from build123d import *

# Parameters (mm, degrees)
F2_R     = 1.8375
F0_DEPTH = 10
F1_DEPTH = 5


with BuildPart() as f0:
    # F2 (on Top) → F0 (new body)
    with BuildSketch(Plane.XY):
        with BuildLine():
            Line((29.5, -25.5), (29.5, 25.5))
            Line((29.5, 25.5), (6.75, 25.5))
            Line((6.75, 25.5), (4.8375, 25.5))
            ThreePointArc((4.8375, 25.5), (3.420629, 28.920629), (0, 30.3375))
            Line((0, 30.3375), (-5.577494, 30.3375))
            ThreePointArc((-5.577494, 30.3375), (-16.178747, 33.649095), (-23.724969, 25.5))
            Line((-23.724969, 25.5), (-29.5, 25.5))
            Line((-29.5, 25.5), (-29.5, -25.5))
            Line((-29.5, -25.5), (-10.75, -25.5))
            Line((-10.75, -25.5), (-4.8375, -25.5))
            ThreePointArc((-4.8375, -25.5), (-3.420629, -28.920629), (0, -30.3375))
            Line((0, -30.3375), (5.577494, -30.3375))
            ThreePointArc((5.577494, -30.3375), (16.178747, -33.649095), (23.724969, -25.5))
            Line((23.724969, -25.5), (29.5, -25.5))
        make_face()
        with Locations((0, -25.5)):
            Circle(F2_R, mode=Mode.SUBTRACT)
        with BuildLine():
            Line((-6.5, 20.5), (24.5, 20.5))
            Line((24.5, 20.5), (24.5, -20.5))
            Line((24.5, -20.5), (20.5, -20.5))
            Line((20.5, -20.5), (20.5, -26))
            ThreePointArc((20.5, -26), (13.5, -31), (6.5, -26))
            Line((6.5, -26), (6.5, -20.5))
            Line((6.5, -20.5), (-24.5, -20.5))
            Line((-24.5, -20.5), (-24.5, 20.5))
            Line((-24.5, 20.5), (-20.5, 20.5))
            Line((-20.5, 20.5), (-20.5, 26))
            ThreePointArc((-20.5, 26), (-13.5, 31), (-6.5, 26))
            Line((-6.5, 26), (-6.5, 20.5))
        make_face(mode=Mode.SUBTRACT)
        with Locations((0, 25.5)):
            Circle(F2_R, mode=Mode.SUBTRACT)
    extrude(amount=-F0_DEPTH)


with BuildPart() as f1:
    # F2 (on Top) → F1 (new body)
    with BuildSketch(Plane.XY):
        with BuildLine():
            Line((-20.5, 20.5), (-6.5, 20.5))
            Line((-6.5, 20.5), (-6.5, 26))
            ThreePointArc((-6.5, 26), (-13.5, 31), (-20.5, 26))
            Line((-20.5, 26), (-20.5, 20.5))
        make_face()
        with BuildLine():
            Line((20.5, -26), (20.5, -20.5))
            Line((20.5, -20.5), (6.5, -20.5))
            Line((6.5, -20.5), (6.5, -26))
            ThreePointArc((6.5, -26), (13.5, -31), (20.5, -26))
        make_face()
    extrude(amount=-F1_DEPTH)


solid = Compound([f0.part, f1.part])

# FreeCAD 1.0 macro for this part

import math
import FreeCAD as App
import Part
import Sketcher

V = App.Vector

doc = App.newDocument("Part")
body = doc.addObject("PartDesign::Body", "Body")

# Sketch on XY plane
sketch1 = doc.addObject("Sketcher::SketchObject", "Sketch")
body.addObject(sketch1)
sketch1.AttachmentSupport = (doc.XY_Plane, [""])
sketch1.MapMode = "FlatFace"
sketch1.addGeometry(Part.LineSegment(V(29.5, -25.5, 0), V(29.5, 25.5, 0)), False)
sketch1.addGeometry(Part.LineSegment(V(29.5, 25.5, 0), V(4.8, 25.5, 0)), False)
sketch1.addGeometry(Part.ArcOfCircle(Part.Circle(V(0, 25.5, 0), V(0, 0, 1), 4.8), math.radians(0), math.radians(90)), False)
sketch1.addGeometry(Part.LineSegment(V(0, 30.3, 0), V(-5.6, 30.3, 0)), False)
sketch1.addGeometry(Part.ArcOfCircle(Part.Circle(V(-13.5, 23.6, 0), V(0, 0, 1), 10.4), math.radians(40), math.radians(169)), False)
sketch1.addGeometry(Part.LineSegment(V(-23.7, 25.5, 0), V(-29.5, 25.5, 0)), False)
sketch1.addGeometry(Part.LineSegment(V(-29.5, 25.5, 0), V(-29.5, -25.5, 0)), False)
sketch1.addGeometry(Part.LineSegment(V(-29.5, -25.5, 0), V(-4.8, -25.5, 0)), False)
sketch1.addGeometry(Part.ArcOfCircle(Part.Circle(V(0, -25.5, 0), V(0, 0, 1), 4.8), math.radians(-180), math.radians(-90)), False)
sketch1.addGeometry(Part.LineSegment(V(0, -30.3, 0), V(5.6, -30.3, 0)), False)
sketch1.addGeometry(Part.ArcOfCircle(Part.Circle(V(13.5, -23.6, 0), V(0, 0, 1), 10.4), math.radians(-140), math.radians(-11)), False)
sketch1.addGeometry(Part.LineSegment(V(23.7, -25.5, 0), V(29.5, -25.5, 0)), False)
sketch1.addGeometry(Part.Circle(V(0, -25.5, 0), V(0, 0, 1), 1.8), False)
sketch1.addGeometry(Part.LineSegment(V(-6.5, 26, 0), V(-6.5, 20.5, 0)), False)
sketch1.addGeometry(Part.LineSegment(V(-6.5, 20.5, 0), V(24.5, 20.5, 0)), False)
sketch1.addGeometry(Part.LineSegment(V(24.5, 20.5, 0), V(24.5, -20.5, 0)), False)
sketch1.addGeometry(Part.LineSegment(V(24.5, -20.5, 0), V(20.5, -20.5, 0)), False)
sketch1.addGeometry(Part.LineSegment(V(20.5, -20.5, 0), V(20.5, -26, 0)), False)
sketch1.addGeometry(Part.ArcOfCircle(Part.Circle(V(13.5, -23.6, 0), V(0, 0, 1), 7.4), math.radians(-161), math.radians(-19)), False)
sketch1.addGeometry(Part.LineSegment(V(6.5, -26, 0), V(6.5, -20.5, 0)), False)
sketch1.addGeometry(Part.LineSegment(V(6.5, -20.5, 0), V(-24.5, -20.5, 0)), False)
sketch1.addGeometry(Part.LineSegment(V(-24.5, -20.5, 0), V(-24.5, 20.5, 0)), False)
sketch1.addGeometry(Part.LineSegment(V(-24.5, 20.5, 0), V(-20.5, 20.5, 0)), False)
sketch1.addGeometry(Part.LineSegment(V(-20.5, 20.5, 0), V(-20.5, 26, 0)), False)
sketch1.addGeometry(Part.ArcOfCircle(Part.Circle(V(-13.5, 23.6, 0), V(0, 0, 1), 7.4), math.radians(19), math.radians(161)), False)
sketch1.addGeometry(Part.Circle(V(0, 25.5, 0), V(0, 0, 1), 1.8), False)
sketch1.addConstraint(Sketcher.Constraint("Coincident", 0, 2, 1, 1))
sketch1.addConstraint(Sketcher.Constraint("Coincident", 1, 2, 2, 1))
sketch1.addConstraint(Sketcher.Constraint("Tangent", 2, 2, 3, 1))
sketch1.addConstraint(Sketcher.Constraint("Coincident", 3, 2, 4, 1))
sketch1.addConstraint(Sketcher.Constraint("Coincident", 4, 2, 5, 1))
sketch1.addConstraint(Sketcher.Constraint("Coincident", 5, 2, 6, 1))
sketch1.addConstraint(Sketcher.Constraint("Coincident", 6, 2, 7, 1))
sketch1.addConstraint(Sketcher.Constraint("Coincident", 7, 2, 8, 1))
sketch1.addConstraint(Sketcher.Constraint("Tangent", 8, 2, 9, 1))
sketch1.addConstraint(Sketcher.Constraint("Coincident", 9, 2, 10, 1))
sketch1.addConstraint(Sketcher.Constraint("Coincident", 10, 2, 11, 1))
sketch1.addConstraint(Sketcher.Constraint("Coincident", 11, 2, 0, 1))
sketch1.addConstraint(Sketcher.Constraint("Coincident", 13, 2, 14, 1))
sketch1.addConstraint(Sketcher.Constraint("Coincident", 14, 2, 15, 1))
sketch1.addConstraint(Sketcher.Constraint("Coincident", 15, 2, 16, 1))
sketch1.addConstraint(Sketcher.Constraint("Coincident", 16, 2, 17, 1))
sketch1.addConstraint(Sketcher.Constraint("Coincident", 17, 2, 18, 2))
sketch1.addConstraint(Sketcher.Constraint("Coincident", 18, 1, 19, 1))
sketch1.addConstraint(Sketcher.Constraint("Coincident", 19, 2, 20, 1))
sketch1.addConstraint(Sketcher.Constraint("Coincident", 20, 2, 21, 1))
sketch1.addConstraint(Sketcher.Constraint("Coincident", 21, 2, 22, 1))
sketch1.addConstraint(Sketcher.Constraint("Coincident", 22, 2, 23, 1))
sketch1.addConstraint(Sketcher.Constraint("Coincident", 23, 2, 24, 2))
sketch1.addConstraint(Sketcher.Constraint("Coincident", 24, 1, 13, 1))
sketch1.addConstraint(Sketcher.Constraint("Vertical", 0))
sketch1.addConstraint(Sketcher.Constraint("Horizontal", 1))
sketch1.addConstraint(Sketcher.Constraint("Horizontal", 3))
sketch1.addConstraint(Sketcher.Constraint("Horizontal", 5))
sketch1.addConstraint(Sketcher.Constraint("Vertical", 6))
sketch1.addConstraint(Sketcher.Constraint("Horizontal", 7))
sketch1.addConstraint(Sketcher.Constraint("Horizontal", 9))
sketch1.addConstraint(Sketcher.Constraint("Horizontal", 11))
sketch1.addConstraint(Sketcher.Constraint("Vertical", 13))
sketch1.addConstraint(Sketcher.Constraint("Horizontal", 14))
sketch1.addConstraint(Sketcher.Constraint("Vertical", 15))
sketch1.addConstraint(Sketcher.Constraint("Horizontal", 16))
sketch1.addConstraint(Sketcher.Constraint("Vertical", 17))
sketch1.addConstraint(Sketcher.Constraint("Vertical", 19))
sketch1.addConstraint(Sketcher.Constraint("Horizontal", 20))
sketch1.addConstraint(Sketcher.Constraint("Vertical", 21))
sketch1.addConstraint(Sketcher.Constraint("Horizontal", 22))
sketch1.addConstraint(Sketcher.Constraint("Vertical", 23))
sketch1.addConstraint(Sketcher.Constraint("Coincident", 12, 3, 8, 3))
sketch1.addConstraint(Sketcher.Constraint("Coincident", 18, 3, 10, 3))
sketch1.addConstraint(Sketcher.Constraint("Coincident", 24, 3, 4, 3))
sketch1.addConstraint(Sketcher.Constraint("Coincident", 25, 3, 2, 3))
sketch1.addConstraint(Sketcher.Constraint("Equal", 2, 8))
sketch1.addConstraint(Sketcher.Constraint("Equal", 4, 10))
sketch1.addConstraint(Sketcher.Constraint("Equal", 18, 24))
sketch1.addConstraint(Sketcher.Constraint("Equal", 12, 25))
sketch1.addConstraint(Sketcher.Constraint("Symmetric", 2, 3, 8, 3, -1, 1))
sketch1.addConstraint(Sketcher.Constraint("Symmetric", 4, 3, 10, 3, -1, 1))
sketch1.addConstraint(Sketcher.Constraint("Symmetric", 0, 2, 6, 2, -1, 1))
sketch1.addConstraint(Sketcher.Constraint("Symmetric", 13, 2, 19, 2, -1, 1))
sketch1.addConstraint(Sketcher.Constraint("Symmetric", 15, 2, 21, 2, -1, 1))
sketch1.addConstraint(Sketcher.Constraint("PointOnObject", 2, 3, -2))
sketch1.addConstraint(Sketcher.Constraint("Horizontal", 25, 3, 0, 2))
sketch1.addConstraint(Sketcher.Constraint("Horizontal", 1, 2, 4, 2))
sketch1.addConstraint(Sketcher.Constraint("Horizontal", 7, 2, 10, 2))
sketch1.addConstraint(Sketcher.Constraint("Horizontal", 17, 2, 18, 1))
sketch1.addConstraint(Sketcher.Constraint("Horizontal", 16, 2, 19, 2))
sketch1.addConstraint(Sketcher.Constraint("Horizontal", 23, 2, 24, 1))
sketch1.addConstraint(Sketcher.Constraint("Radius", 4, 10.4))
sketch1.addConstraint(Sketcher.Constraint("Radius", 18, 7.4))
sketch1.addConstraint(Sketcher.Constraint("DistanceX", 14, 1, 14, 2, 31.0))
sketch1.addConstraint(Sketcher.Constraint("DistanceX", 16, 2, 16, 1, 4.0))
sketch1.addConstraint(Sketcher.Constraint("DistanceY", 0, 1, 0, 2, 51.0))
sketch1.addConstraint(Sketcher.Constraint("DistanceY", 15, 2, 15, 1, 41.0))
sketch1.addConstraint(Sketcher.Constraint("Diameter", 12, 3.675))
sketch1.addConstraint(Sketcher.Constraint("DistanceY", 13, 2, 13, 1, 5.5))
sketch1.addConstraint(Sketcher.Constraint("DistanceX", 4, 3, 0, 2, 42.999999))
sketch1.addConstraint(Sketcher.Constraint("DistanceX", 4, 3, 13, 2, 6.999999))
sketch1.addConstraint(Sketcher.Constraint("Radius", 2, 4.8375))
pad1 = doc.addObject("PartDesign::Pad", "Pad")
body.addObject(pad1)
pad1.Profile = sketch1
pad1.Length = 10
pad1.Reversed = True
body2 = doc.addObject("PartDesign::Body", "Body001")
body2.AllowCompound = True

# Sketch on XY plane
sketch2 = doc.addObject("Sketcher::SketchObject", "Sketch001")
body2.addObject(sketch2)
sketch2.AttachmentSupport = (doc.getObject("XY_Plane001"), [""])
sketch2.MapMode = "FlatFace"
sketch2.addGeometry(Part.LineSegment(V(-20, 20, 0), V(-6, 20, 0)), False)
sketch2.addGeometry(Part.LineSegment(V(-6, 20, 0), V(-6, 26, 0)), False)
sketch2.addGeometry(Part.ArcOfCircle(Part.Circle(V(-14, 24, 0), V(0, 0, 1), 7), math.radians(19), math.radians(161)), False)
sketch2.addGeometry(Part.LineSegment(V(-20, 26, 0), V(-20, 20, 0)), False)
sketch2.addGeometry(Part.LineSegment(V(20, -26, 0), V(20, -20, 0)), False)
sketch2.addGeometry(Part.LineSegment(V(20, -20, 0), V(6, -20, 0)), False)
sketch2.addGeometry(Part.LineSegment(V(6, -20, 0), V(6, -26, 0)), False)
sketch2.addGeometry(Part.ArcOfCircle(Part.Circle(V(14, -24, 0), V(0, 0, 1), 7), math.radians(-161), math.radians(-19)), False)
sketch2.addConstraint(Sketcher.Constraint("Coincident", 0, 2, 1, 1))
sketch2.addConstraint(Sketcher.Constraint("Coincident", 1, 2, 2, 1))
sketch2.addConstraint(Sketcher.Constraint("Coincident", 2, 2, 3, 1))
sketch2.addConstraint(Sketcher.Constraint("Coincident", 3, 2, 0, 1))
sketch2.addConstraint(Sketcher.Constraint("Coincident", 4, 2, 5, 1))
sketch2.addConstraint(Sketcher.Constraint("Coincident", 5, 2, 6, 1))
sketch2.addConstraint(Sketcher.Constraint("Coincident", 6, 2, 7, 1))
sketch2.addConstraint(Sketcher.Constraint("Coincident", 7, 2, 4, 1))
sketch2.addConstraint(Sketcher.Constraint("Horizontal", 0))
sketch2.addConstraint(Sketcher.Constraint("Vertical", 1))
sketch2.addConstraint(Sketcher.Constraint("Vertical", 3))
sketch2.addConstraint(Sketcher.Constraint("Vertical", 4))
sketch2.addConstraint(Sketcher.Constraint("Horizontal", 5))
sketch2.addConstraint(Sketcher.Constraint("Vertical", 6))
sketch2.addConstraint(Sketcher.Constraint("Equal", 2, 7))
sketch2.addConstraint(Sketcher.Constraint("Symmetric", 2, 3, 7, 3, -1, 1))
sketch2.addConstraint(Sketcher.Constraint("Symmetric", 3, 2, 4, 2, -1, 1))
sketch2.addConstraint(Sketcher.Constraint("Horizontal", 1, 2, 2, 2))
sketch2.addConstraint(Sketcher.Constraint("Horizontal", 6, 2, 7, 2))
sketch2.addConstraint(Sketcher.Constraint("Radius", 2, 7.4))
sketch2.addConstraint(Sketcher.Constraint("DistanceX", 0, 1, 0, 2, 14.0))
sketch2.addConstraint(Sketcher.Constraint("DistanceY", 1, 1, 1, 2, 5.5))
sketch2.addConstraint(Sketcher.Constraint("DistanceY", -1, 1, 1, 2, 26.0))
sketch2.addConstraint(Sketcher.Constraint("DistanceX", 2, 3, 7, 3, 27.0))
pad2 = doc.addObject("PartDesign::Pad", "Pad001")
body2.addObject(pad2)
pad2.Profile = sketch2
pad2.Length = 5
pad2.Reversed = True

doc.recompute()
